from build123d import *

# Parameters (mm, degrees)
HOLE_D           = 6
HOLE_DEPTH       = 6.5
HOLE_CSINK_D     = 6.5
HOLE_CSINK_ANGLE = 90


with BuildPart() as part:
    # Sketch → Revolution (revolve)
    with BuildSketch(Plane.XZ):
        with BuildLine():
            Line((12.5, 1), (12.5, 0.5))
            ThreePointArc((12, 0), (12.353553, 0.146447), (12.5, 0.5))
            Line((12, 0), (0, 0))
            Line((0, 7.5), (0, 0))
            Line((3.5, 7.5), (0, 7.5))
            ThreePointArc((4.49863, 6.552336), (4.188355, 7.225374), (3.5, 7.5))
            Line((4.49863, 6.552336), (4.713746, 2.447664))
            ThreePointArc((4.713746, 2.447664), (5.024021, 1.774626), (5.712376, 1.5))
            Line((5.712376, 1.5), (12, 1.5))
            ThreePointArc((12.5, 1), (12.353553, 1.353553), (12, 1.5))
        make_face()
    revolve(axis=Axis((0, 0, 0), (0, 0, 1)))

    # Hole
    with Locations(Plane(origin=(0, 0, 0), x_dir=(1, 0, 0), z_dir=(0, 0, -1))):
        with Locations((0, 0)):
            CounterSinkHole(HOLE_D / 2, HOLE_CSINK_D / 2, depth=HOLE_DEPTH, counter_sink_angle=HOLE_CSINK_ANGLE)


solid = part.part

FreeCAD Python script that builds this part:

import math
import FreeCAD as App
import Part
import Sketcher
from FreeCAD import Vector
Q = App.Units.Quantity

doc = App.newDocument("Part")
body = doc.addObject("PartDesign::Body", "Body")

# Sketch on XZ plane
sketch1 = body.newObject("Sketcher::SketchObject", "Sketch")
sketch1.AttachmentSupport = (doc.getObject("XZ_Plane"), [""])
sketch1.MapMode = "FlatFace"
sketch1.addGeometry([
    Part.LineSegment(Vector(12.5, 0.5, 0), Vector(12.5, 1, 0)),  # 0
    Part.ArcOfCircle(Part.Circle(Vector(12, 1, 0), Vector(0, 0, 1), 0.5), math.radians(0), math.radians(90)),  # 1
    Part.LineSegment(Vector(12, 1.5, 0), Vector(5.7, 1.5, 0)),  # 2
    Part.ArcOfCircle(Part.Circle(Vector(5.7, 2.5, 0), Vector(0, 0, 1), 1), math.radians(-177), math.radians(-90)),  # 3
    Part.LineSegment(Vector(4.7, 2.4, 0), Vector(4.5, 6.6, 0)),  # 4
    Part.ArcOfCircle(Part.Circle(Vector(3.5, 6.5, 0), Vector(0, 0, 1), 1), math.radians(3), math.radians(90)),  # 5
    Part.LineSegment(Vector(3.5, 7.5, 0), Vector(0, 7.5, 0)),  # 6
    Part.LineSegment(Vector(0, 7.5, 0), Vector(0, 0, 0)),  # 7
    Part.LineSegment(Vector(0, 0, 0), Vector(12, 0, 0)),  # 8
    Part.ArcOfCircle(Part.Circle(Vector(12, 0.5, 0), Vector(0, 0, 1), 0.5), math.radians(-90), math.radians(0)),  # 9
], False)
sketch1.addConstraint([
    Sketcher.Constraint("Coincident", 0, 2, 1, 1),
    Sketcher.Constraint("Coincident", 1, 2, 2, 1),
    Sketcher.Constraint("Tangent", 2, 2, 3, 2),
    Sketcher.Constraint("Tangent", 3, 1, 4, 1),
    Sketcher.Constraint("Tangent", 4, 2, 5, 1),
    Sketcher.Constraint("Tangent", 5, 2, 6, 1),
    Sketcher.Constraint("Coincident", 6, 2, 7, 1),
    Sketcher.Constraint("Coincident", 7, 2, 8, 1),
    Sketcher.Constraint("Coincident", 8, 2, 9, 1),
    Sketcher.Constraint("Coincident", 9, 2, 0, 1),
    Sketcher.Constraint("Vertical", 0),
    Sketcher.Constraint("Horizontal", 2),
    Sketcher.Constraint("Horizontal", 6),
    Sketcher.Constraint("Vertical", 7),
    Sketcher.Constraint("Horizontal", 8),
    Sketcher.Constraint("Coincident", 7, 2, -1, 1),
    Sketcher.Constraint("Equal", 3, 5),
    Sketcher.Constraint("Equal", 1, 9),
    Sketcher.Constraint("Horizontal", 1, 3, 0, 2),
    Sketcher.Constraint("Vertical", 9, 3, 1, 2),
    Sketcher.Constraint("Vertical", 1, 2, 8, 2),
    Sketcher.Constraint("Radius", 3, 1.000001),
    Sketcher.Constraint("Radius", 1, 0.500001),
    Sketcher.Constraint("DistanceX", 8, 1, 8, 2, 12.0),
    Sketcher.Constraint("Angle", 4, Q("92.99999 deg")),
    Sketcher.Constraint("DistanceX", 6, 2, 6, 1, 3.5),
    Sketcher.Constraint("DistanceY", 0, 1, 0, 2, 0.5),
    Sketcher.Constraint("DistanceY", 7, 2, 7, 1, 7.5),
    Sketcher.Constraint("DistanceY", -1, 1, 1, 3, 0.999999),
])
revolution = body.newObject("PartDesign::Revolution", "Revolution")
revolution.Profile = sketch1
revolution.ReferenceAxis = (sketch1, ["V_Axis"])
revolution.Angle = 360

# Sketch on XY plane
sketch2 = body.newObject("Sketcher::SketchObject", "Sketch001")
sketch2.AttachmentSupport = (doc.getObject("XY_Plane"), [""])
sketch2.MapMode = "FlatFace"
sketch2.addGeometry(Part.Circle(Vector(0, 0, 0), Vector(0, 0, 1), 3), False)
sketch2.addConstraint([
    Sketcher.Constraint("Coincident", 0, 3, -1, 1),
    Sketcher.Constraint("Diameter", 0, 6.0),
])
doc.recompute()
hole = body.newObject("PartDesign::Hole", "Hole")
hole.Profile = sketch2
hole.ThreadType = "None"
hole.Diameter = 6
hole.DepthType = "Dimension"
hole.Depth = 6.5
hole.DrillPoint = "Flat"
hole.HoleCutType = "Countersink"
hole.HoleCutDiameter = 6.5
hole.HoleCutCountersinkAngle = 90
hole.Reversed = True

doc.recompute()
